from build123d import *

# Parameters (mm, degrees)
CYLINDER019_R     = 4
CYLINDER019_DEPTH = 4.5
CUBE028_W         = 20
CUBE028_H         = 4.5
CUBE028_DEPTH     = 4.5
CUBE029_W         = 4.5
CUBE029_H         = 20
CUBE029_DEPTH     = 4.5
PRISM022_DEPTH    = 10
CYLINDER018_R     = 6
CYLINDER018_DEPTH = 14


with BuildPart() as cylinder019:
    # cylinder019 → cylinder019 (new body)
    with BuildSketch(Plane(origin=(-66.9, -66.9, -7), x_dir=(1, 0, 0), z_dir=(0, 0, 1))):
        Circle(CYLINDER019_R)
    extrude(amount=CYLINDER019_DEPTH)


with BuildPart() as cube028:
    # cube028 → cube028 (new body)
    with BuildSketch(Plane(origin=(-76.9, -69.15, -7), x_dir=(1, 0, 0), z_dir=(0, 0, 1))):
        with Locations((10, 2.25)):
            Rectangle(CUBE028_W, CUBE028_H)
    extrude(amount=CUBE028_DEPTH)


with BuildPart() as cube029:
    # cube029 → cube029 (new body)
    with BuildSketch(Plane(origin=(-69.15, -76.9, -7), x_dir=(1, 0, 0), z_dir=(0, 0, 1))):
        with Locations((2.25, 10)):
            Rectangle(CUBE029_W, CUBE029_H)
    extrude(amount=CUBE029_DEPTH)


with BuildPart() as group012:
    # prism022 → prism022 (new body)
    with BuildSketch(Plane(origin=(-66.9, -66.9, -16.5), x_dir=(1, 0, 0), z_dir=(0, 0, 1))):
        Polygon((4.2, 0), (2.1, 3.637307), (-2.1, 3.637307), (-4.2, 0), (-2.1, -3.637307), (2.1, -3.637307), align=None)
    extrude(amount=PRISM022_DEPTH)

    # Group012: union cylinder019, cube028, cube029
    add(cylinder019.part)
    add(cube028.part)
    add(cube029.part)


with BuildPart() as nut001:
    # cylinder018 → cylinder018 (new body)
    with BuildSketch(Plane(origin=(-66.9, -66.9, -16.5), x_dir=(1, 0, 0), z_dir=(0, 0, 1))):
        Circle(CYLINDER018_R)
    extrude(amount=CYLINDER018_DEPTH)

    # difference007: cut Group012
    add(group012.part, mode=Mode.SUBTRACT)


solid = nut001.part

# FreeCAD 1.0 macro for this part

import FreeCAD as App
import Part
import Sketcher

V = App.Vector
Q = App.Units.Quantity

doc = App.newDocument("Part")
body = doc.addObject("PartDesign::Body", "Body")

sketch1 = doc.addObject("Sketcher::SketchObject", "Sketch")
body.addObject(sketch1)
sketch1.AttachmentSupport = (doc.XY_Plane, [""])
sketch1.MapMode = "FlatFace"
sketch1.AttachmentOffset = App.Placement(V(0, 0, -7), App.Rotation())
sketch1.addGeometry(Part.Circle(V(-66.9, -66.9, 0), V(0, 0, 1), 4), False)
sketch1.addConstraint(Sketcher.Constraint("Diameter", 0, 8.0))
sketch1.addConstraint(Sketcher.Constraint("DistanceX", 0, 3, -1, 1, 66.9))
sketch1.addConstraint(Sketcher.Constraint("DistanceY", 0, 3, -1, 1, 66.9))
pad1 = doc.addObject("PartDesign::Pad", "Pad")
body.addObject(pad1)
pad1.Profile = sketch1
pad1.Length = 4.5
body2 = doc.addObject("PartDesign::Body", "Body001")

sketch2 = doc.addObject("Sketcher::SketchObject", "Sketch001")
body2.addObject(sketch2)
sketch2.AttachmentSupport = (doc.getObject("XY_Plane001"), [""])
sketch2.MapMode = "FlatFace"
sketch2.AttachmentOffset = App.Placement(V(0, 0, -7), App.Rotation())
sketch2.addGeometry(Part.LineSegment(V(-76.9, -64.65, 0), V(-76.9, -69.15, 0)), False)
sketch2.addGeometry(Part.LineSegment(V(-76.9, -69.15, 0), V(-56.9, -69.15, 0)), False)
sketch2.addGeometry(Part.LineSegment(V(-56.9, -69.15, 0), V(-56.9, -64.65, 0)), False)
sketch2.addGeometry(Part.LineSegment(V(-56.9, -64.65, 0), V(-76.9, -64.65, 0)), False)
sketch2.addConstraint(Sketcher.Constraint("Coincident", 0, 2, 1, 1))
sketch2.addConstraint(Sketcher.Constraint("Coincident", 1, 2, 2, 1))
sketch2.addConstraint(Sketcher.Constraint("Coincident", 2, 2, 3, 1))
sketch2.addConstraint(Sketcher.Constraint("Coincident", 3, 2, 0, 1))
sketch2.addConstraint(Sketcher.Constraint("Vertical", 0))
sketch2.addConstraint(Sketcher.Constraint("Horizontal", 1))
sketch2.addConstraint(Sketcher.Constraint("Vertical", 2))
sketch2.addConstraint(Sketcher.Constraint("Horizontal", 3))
sketch2.addConstraint(Sketcher.Constraint("DistanceX", 1, 1, 1, 2, 20.0))
sketch2.addConstraint(Sketcher.Constraint("DistanceY", 0, 2, 0, 1, 4.5))
sketch2.addConstraint(Sketcher.Constraint("DistanceX", 0, 2, -1, 1, 76.9))
sketch2.addConstraint(Sketcher.Constraint("DistanceY", 0, 2, -1, 1, 69.15))
pad2 = doc.addObject("PartDesign::Pad", "Pad001")
body2.addObject(pad2)
pad2.Profile = sketch2
pad2.Length = 4.5
body3 = doc.addObject("PartDesign::Body", "Body002")

sketch3 = doc.addObject("Sketcher::SketchObject", "Sketch002")
body3.addObject(sketch3)
sketch3.AttachmentSupport = (doc.getObject("XY_Plane002"), [""])
sketch3.MapMode = "FlatFace"
sketch3.AttachmentOffset = App.Placement(V(0, 0, -7), App.Rotation())
sketch3.addGeometry(Part.LineSegment(V(-69.15, -56.9, 0), V(-69.15, -76.9, 0)), False)
sketch3.addGeometry(Part.LineSegment(V(-69.15, -76.9, 0), V(-64.65, -76.9, 0)), False)
sketch3.addGeometry(Part.LineSegment(V(-64.65, -76.9, 0), V(-64.65, -56.9, 0)), False)
sketch3.addGeometry(Part.LineSegment(V(-64.65, -56.9, 0), V(-69.15, -56.9, 0)), False)
sketch3.addConstraint(Sketcher.Constraint("Coincident", 0, 2, 1, 1))
sketch3.addConstraint(Sketcher.Constraint("Coincident", 1, 2, 2, 1))
sketch3.addConstraint(Sketcher.Constraint("Coincident", 2, 2, 3, 1))
sketch3.addConstraint(Sketcher.Constraint("Coincident", 3, 2, 0, 1))
sketch3.addConstraint(Sketcher.Constraint("Vertical", 0))
sketch3.addConstraint(Sketcher.Constraint("Horizontal", 1))
sketch3.addConstraint(Sketcher.Constraint("Vertical", 2))
sketch3.addConstraint(Sketcher.Constraint("Horizontal", 3))
sketch3.addConstraint(Sketcher.Constraint("DistanceY", 0, 2, 0, 1, 20.0))
sketch3.addConstraint(Sketcher.Constraint("DistanceX", 1, 1, 1, 2, 4.5))
sketch3.addConstraint(Sketcher.Constraint("DistanceY", 0, 2, -1, 1, 76.9))
sketch3.addConstraint(Sketcher.Constraint("DistanceX", 0, 2, -1, 1, 69.15))
pad3 = doc.addObject("PartDesign::Pad", "Pad002")
body3.addObject(pad3)
pad3.Profile = sketch3
pad3.Length = 4.5
body4 = doc.addObject("PartDesign::Body", "Body003")

sketch4 = doc.addObject("Sketcher::SketchObject", "Sketch003")
body4.addObject(sketch4)
sketch4.AttachmentSupport = (doc.getObject("XY_Plane003"), [""])
sketch4.MapMode = "FlatFace"
sketch4.AttachmentOffset = App.Placement(V(0, 0, -16.5), App.Rotation())
sketch4.addGeometry(Part.LineSegment(V(-62.7, -66.9, 0), V(-64.8, -63.262693, 0)), False)
sketch4.addGeometry(Part.LineSegment(V(-64.8, -63.262693, 0), V(-69, -63.262693, 0)), False)
sketch4.addGeometry(Part.LineSegment(V(-69, -63.262693, 0), V(-71.1, -66.9, 0)), False)
sketch4.addGeometry(Part.LineSegment(V(-71.1, -66.9, 0), V(-69, -70.537307, 0)), False)
sketch4.addGeometry(Part.LineSegment(V(-69, -70.537307, 0), V(-64.8, -70.537307, 0)), False)
sketch4.addGeometry(Part.LineSegment(V(-64.8, -70.537307, 0), V(-62.7, -66.9, 0)), False)
sketch4.addConstraint(Sketcher.Constraint("Coincident", 0, 2, 1, 1))
sketch4.addConstraint(Sketcher.Constraint("Coincident", 1, 2, 2, 1))
sketch4.addConstraint(Sketcher.Constraint("Coincident", 2, 2, 3, 1))
sketch4.addConstraint(Sketcher.Constraint("Coincident", 3, 2, 4, 1))
sketch4.addConstraint(Sketcher.Constraint("Coincident", 4, 2, 5, 1))
sketch4.addConstraint(Sketcher.Constraint("Coincident", 5, 2, 0, 1))
sketch4.addConstraint(Sketcher.Constraint("Horizontal", 1))
sketch4.addConstraint(Sketcher.Constraint("Horizontal", 4))
sketch4.addConstraint(Sketcher.Constraint("Parallel", 0, 3))
sketch4.addConstraint(Sketcher.Constraint("Parallel", 2, 5))
sketch4.addConstraint(Sketcher.Constraint("Horizontal", 2, 2, 5, 2))
sketch4.addConstraint(Sketcher.Constraint("Vertical", 1, 2, 3, 2))
sketch4.addConstraint(Sketcher.Constraint("Vertical", 0, 2, 4, 2))
sketch4.addConstraint(Sketcher.Constraint("Angle", 0, Q("119.999998 deg")))
sketch4.addConstraint(Sketcher.Constraint("DistanceX", 1, 2, 1, 1, 4.2))
sketch4.addConstraint(Sketcher.Constraint("DistanceX", 1, 2, -1, 1, 69.0))
sketch4.addConstraint(Sketcher.Constraint("Distance", 0, 4.2))
sketch4.addConstraint(Sketcher.Constraint("DistanceY", 2, 2, -1, 1, 66.9))
pad4 = doc.addObject("PartDesign::Pad", "Pad003")
body4.addObject(pad4)
pad4.Profile = sketch4
pad4.Length = 10
doc.recompute()

boolean = doc.addObject("PartDesign::Boolean", "Boolean")
body4.addObject(boolean)
boolean.Type = "Fuse"
boolean.addObjects([body])
doc.recompute()

boolean2 = doc.addObject("PartDesign::Boolean", "Boolean001")
body4.addObject(boolean2)
boolean2.Type = "Fuse"
boolean2.addObjects([body2])
doc.recompute()

boolean3 = doc.addObject("PartDesign::Boolean", "Boolean002")
body4.addObject(boolean3)
boolean3.Type = "Fuse"
boolean3.addObjects([body3])
body5 = doc.addObject("PartDesign::Body", "Body004")

sketch5 = doc.addObject("Sketcher::SketchObject", "Sketch004")
body5.addObject(sketch5)
sketch5.AttachmentSupport = (doc.getObject("XY_Plane004"), [""])
sketch5.MapMode = "FlatFace"
sketch5.AttachmentOffset = App.Placement(V(0, 0, -16.5), App.Rotation())
sketch5.addGeometry(Part.Circle(V(-66.9, -66.9, 0), V(0, 0, 1), 6), False)
sketch5.addConstraint(Sketcher.Constraint("Diameter", 0, 12.0))
sketch5.addConstraint(Sketcher.Constraint("DistanceX", 0, 3, -1, 1, 66.9))
sketch5.addConstraint(Sketcher.Constraint("DistanceY", 0, 3, -1, 1, 66.9))
pad5 = doc.addObject("PartDesign::Pad", "Pad004")
body5.addObject(pad5)
pad5.Profile = sketch5
pad5.Length = 14
doc.recompute()

boolean4 = doc.addObject("PartDesign::Boolean", "Boolean003")
body5.addObject(boolean4)
boolean4.Type = "Cut"
boolean4.addObjects([body4])

doc.recompute()
